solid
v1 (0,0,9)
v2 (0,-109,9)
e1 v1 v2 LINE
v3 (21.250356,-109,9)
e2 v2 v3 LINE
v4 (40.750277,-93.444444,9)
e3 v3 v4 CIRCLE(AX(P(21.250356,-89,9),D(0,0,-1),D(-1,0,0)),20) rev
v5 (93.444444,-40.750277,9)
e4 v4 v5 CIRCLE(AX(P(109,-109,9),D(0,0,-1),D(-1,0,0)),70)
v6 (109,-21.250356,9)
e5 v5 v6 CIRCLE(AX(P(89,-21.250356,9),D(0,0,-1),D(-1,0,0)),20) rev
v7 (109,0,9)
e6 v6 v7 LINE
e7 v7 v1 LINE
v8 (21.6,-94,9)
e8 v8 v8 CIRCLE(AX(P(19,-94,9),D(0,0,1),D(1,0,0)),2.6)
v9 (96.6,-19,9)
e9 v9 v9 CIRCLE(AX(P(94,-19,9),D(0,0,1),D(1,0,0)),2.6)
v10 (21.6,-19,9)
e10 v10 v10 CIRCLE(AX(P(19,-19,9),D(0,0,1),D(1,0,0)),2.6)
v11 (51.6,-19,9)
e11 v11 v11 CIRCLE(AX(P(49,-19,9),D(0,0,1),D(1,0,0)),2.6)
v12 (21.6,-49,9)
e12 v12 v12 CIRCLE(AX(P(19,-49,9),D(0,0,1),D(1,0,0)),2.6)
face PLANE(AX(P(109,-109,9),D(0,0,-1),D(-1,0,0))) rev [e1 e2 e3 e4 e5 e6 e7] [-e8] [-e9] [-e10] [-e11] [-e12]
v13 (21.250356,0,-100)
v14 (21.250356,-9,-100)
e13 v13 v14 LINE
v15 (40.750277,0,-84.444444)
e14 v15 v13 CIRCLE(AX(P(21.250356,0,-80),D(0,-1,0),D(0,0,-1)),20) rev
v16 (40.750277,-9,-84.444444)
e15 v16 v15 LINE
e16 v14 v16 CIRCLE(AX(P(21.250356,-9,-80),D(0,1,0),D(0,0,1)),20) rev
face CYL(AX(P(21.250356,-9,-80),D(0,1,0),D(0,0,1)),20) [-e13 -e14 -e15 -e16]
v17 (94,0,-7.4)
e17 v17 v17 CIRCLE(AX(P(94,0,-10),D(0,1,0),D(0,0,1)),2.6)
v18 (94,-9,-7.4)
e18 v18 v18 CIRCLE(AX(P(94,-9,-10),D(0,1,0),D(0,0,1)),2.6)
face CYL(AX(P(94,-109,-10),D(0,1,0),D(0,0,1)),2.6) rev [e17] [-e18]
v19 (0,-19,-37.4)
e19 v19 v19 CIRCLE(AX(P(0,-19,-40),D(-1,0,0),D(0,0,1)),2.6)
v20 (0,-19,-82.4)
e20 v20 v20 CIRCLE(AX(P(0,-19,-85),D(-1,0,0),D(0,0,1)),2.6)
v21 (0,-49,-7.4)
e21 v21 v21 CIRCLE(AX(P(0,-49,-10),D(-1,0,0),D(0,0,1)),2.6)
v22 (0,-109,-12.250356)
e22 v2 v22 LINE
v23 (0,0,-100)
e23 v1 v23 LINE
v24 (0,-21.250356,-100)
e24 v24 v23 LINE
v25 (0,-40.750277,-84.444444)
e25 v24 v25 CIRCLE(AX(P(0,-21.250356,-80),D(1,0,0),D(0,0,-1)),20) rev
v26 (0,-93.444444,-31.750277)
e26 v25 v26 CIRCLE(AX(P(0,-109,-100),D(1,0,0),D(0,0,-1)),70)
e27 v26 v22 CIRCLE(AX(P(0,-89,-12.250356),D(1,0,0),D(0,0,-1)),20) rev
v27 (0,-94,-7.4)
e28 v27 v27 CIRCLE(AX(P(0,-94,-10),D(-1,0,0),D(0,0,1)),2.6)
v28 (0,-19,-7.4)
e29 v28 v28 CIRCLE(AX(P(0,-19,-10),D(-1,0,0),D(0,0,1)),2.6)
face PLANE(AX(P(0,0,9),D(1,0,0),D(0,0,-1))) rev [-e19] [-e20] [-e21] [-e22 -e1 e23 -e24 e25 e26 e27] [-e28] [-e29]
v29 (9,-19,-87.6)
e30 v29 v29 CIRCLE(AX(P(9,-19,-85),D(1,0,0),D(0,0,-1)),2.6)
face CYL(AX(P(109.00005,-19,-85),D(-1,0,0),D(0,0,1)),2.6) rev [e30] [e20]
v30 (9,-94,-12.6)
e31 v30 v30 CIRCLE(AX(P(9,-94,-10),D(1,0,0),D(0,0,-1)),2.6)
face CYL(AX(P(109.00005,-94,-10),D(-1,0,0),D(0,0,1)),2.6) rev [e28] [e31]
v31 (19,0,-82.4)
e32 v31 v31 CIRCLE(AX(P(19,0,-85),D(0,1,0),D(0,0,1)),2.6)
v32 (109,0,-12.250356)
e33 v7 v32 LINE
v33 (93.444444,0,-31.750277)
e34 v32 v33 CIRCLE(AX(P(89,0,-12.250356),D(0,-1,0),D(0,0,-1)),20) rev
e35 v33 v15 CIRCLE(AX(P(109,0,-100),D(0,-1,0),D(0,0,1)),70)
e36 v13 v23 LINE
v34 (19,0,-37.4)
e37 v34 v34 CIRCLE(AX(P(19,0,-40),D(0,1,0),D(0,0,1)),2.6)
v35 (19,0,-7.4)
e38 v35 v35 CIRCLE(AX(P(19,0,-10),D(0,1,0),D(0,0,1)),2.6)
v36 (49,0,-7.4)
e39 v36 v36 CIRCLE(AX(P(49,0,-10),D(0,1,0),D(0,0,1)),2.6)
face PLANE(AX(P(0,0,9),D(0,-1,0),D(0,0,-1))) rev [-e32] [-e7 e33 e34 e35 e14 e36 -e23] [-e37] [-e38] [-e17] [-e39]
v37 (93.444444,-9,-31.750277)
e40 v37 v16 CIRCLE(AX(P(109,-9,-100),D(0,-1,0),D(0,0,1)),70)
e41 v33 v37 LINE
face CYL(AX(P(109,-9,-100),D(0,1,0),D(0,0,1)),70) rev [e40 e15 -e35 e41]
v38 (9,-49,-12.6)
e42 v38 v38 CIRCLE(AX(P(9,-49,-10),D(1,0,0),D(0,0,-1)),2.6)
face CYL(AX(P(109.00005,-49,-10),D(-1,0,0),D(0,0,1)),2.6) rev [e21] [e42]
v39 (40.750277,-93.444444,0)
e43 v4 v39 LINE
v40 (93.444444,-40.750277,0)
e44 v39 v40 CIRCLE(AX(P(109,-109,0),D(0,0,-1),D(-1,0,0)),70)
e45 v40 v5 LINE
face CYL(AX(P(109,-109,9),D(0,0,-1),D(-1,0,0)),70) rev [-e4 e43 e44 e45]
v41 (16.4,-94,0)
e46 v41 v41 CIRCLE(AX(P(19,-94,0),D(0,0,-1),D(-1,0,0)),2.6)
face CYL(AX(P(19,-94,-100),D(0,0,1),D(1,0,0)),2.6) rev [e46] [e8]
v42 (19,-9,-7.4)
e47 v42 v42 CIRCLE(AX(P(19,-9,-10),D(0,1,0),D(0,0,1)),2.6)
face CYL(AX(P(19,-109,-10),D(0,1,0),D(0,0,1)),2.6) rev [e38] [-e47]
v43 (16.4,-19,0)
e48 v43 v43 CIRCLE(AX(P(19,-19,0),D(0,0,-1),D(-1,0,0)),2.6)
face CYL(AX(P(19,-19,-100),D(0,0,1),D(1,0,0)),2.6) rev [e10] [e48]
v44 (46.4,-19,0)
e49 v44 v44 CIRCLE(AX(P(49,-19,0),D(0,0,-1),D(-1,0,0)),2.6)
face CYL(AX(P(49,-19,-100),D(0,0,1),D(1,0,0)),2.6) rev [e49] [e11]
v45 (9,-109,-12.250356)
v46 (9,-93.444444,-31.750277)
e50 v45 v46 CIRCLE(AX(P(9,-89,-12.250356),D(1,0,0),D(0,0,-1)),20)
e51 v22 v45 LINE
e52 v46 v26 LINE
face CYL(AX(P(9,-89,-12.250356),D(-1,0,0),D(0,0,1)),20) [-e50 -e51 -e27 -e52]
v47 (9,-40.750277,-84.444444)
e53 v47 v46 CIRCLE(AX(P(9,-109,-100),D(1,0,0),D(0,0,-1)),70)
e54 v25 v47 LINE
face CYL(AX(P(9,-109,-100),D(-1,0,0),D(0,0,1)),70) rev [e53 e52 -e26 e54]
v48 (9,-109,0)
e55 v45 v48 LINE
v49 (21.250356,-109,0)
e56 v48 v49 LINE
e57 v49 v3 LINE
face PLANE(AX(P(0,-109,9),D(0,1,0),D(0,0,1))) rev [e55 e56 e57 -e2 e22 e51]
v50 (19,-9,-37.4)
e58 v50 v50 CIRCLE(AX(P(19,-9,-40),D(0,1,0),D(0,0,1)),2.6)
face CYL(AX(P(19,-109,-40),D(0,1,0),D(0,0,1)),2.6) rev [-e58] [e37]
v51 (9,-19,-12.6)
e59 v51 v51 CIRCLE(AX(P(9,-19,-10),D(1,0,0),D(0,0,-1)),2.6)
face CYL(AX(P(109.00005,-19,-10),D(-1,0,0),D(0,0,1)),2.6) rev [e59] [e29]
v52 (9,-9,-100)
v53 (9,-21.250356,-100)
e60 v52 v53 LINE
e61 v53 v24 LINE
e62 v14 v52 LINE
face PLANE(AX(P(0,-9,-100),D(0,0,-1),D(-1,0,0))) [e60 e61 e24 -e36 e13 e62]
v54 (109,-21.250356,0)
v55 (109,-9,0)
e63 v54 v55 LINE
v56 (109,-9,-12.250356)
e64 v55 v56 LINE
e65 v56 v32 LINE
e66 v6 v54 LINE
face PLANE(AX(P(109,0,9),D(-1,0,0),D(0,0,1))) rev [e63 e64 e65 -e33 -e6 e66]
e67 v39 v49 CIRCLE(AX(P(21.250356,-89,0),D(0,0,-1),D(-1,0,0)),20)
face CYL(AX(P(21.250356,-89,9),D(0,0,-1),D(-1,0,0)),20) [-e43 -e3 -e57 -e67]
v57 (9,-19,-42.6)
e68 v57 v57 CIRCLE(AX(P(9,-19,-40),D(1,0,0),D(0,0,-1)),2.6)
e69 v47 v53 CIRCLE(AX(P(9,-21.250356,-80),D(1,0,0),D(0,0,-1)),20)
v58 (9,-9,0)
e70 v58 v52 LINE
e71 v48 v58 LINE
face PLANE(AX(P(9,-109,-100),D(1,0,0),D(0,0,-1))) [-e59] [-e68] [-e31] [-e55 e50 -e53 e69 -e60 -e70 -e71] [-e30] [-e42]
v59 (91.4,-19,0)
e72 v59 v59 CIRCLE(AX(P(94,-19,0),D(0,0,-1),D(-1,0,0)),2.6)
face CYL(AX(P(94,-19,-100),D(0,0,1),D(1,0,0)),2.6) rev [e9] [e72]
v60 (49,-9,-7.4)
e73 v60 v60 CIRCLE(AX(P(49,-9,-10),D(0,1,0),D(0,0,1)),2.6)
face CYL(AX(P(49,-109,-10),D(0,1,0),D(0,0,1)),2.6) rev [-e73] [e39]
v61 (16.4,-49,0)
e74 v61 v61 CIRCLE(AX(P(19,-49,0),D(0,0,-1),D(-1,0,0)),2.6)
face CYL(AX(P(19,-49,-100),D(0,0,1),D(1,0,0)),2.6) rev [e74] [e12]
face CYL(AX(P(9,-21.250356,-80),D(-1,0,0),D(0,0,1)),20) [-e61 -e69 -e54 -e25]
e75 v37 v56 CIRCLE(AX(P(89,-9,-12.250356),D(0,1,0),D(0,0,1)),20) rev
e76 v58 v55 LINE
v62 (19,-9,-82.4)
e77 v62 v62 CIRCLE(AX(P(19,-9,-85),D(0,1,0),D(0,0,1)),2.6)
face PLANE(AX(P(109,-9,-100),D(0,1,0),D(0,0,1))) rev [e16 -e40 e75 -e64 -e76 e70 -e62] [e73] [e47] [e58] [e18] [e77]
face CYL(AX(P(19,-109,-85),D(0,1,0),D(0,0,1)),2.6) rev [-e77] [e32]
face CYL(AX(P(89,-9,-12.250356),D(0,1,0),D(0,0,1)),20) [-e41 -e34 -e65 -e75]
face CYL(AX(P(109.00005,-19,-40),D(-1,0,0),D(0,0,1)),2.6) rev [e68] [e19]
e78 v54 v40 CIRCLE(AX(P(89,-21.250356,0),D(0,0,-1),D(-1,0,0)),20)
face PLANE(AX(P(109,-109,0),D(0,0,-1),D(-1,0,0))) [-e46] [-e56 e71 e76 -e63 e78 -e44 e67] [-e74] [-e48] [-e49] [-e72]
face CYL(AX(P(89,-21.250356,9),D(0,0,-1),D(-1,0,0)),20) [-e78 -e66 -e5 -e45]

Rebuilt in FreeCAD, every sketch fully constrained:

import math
import FreeCAD as App
import Part
import Sketcher

V = App.Vector
Q = App.Units.Quantity


def edges_at(feature, points):
    """Names of the edges that pass closest to the given points."""
    edges = feature.Shape.Edges
    near = lambda p: min(range(len(edges)), key=lambda i: edges[i].distToShape(Part.Vertex(*p))[0])
    return sorted({f"Edge{near(p) + 1}" for p in points})

doc = App.newDocument("Part")
body = doc.addObject("PartDesign::Body", "Body")

sketch1 = doc.addObject("Sketcher::SketchObject", "Sketch")
body.addObject(sketch1)
sketch1.AttachmentSupport = (doc.XY_Plane, [""])
sketch1.MapMode = "FlatFace"
sketch1.addGeometry(Part.LineSegment(V(109, 0, 0), V(0, 0, 0)), False)
sketch1.addGeometry(Part.LineSegment(V(0, 0, 0), V(0, -109, 0)), False)
sketch1.addGeometry(Part.LineSegment(V(0, -109, 0), V(39, -109, 0)), False)
sketch1.addGeometry(Part.ArcOfCircle(Part.Circle(V(109, -109, 0), V(0, 0, 1), 70), math.radians(90), math.radians(180)), False)
sketch1.addGeometry(Part.LineSegment(V(109, -39, 0), V(109, 0, 0)), False)
sketch1.addConstraint(Sketcher.Constraint("Coincident", 0, 2, 1, 1))
sketch1.addConstraint(Sketcher.Constraint("Coincident", 1, 2, 2, 1))
sketch1.addConstraint(Sketcher.Constraint("Coincident", 2, 2, 3, 2))
sketch1.addConstraint(Sketcher.Constraint("Coincident", 3, 1, 4, 1))
sketch1.addConstraint(Sketcher.Constraint("Coincident", 4, 2, 0, 1))
sketch1.addConstraint(Sketcher.Constraint("Horizontal", 0))
sketch1.addConstraint(Sketcher.Constraint("Vertical", 1))
sketch1.addConstraint(Sketcher.Constraint("Horizontal", 2))
sketch1.addConstraint(Sketcher.Constraint("Vertical", 4))
sketch1.addConstraint(Sketcher.Constraint("Coincident", 0, 2, -1, 1))
sketch1.addConstraint(Sketcher.Constraint("Horizontal", 3, 3, 1, 2))
sketch1.addConstraint(Sketcher.Constraint("Equal", 0, 1))
sketch1.addConstraint(Sketcher.Constraint("Equal", 2, 4))
sketch1.addConstraint(Sketcher.Constraint("Radius", 3, Q("70 mm")))
sketch1.addConstraint(Sketcher.Constraint("DistanceX", 0, 2, 0, 1, Q("109 mm")))
pad1 = doc.addObject("PartDesign::Pad", "Pad")
body.addObject(pad1)
pad1.Profile = sketch1
pad1.Length = 9

sketch2 = doc.addObject("Sketcher::SketchObject", "Sketch001")
body.addObject(sketch2)
sketch2.AttachmentSupport = (doc.XZ_Plane, [""])
sketch2.MapMode = "FlatFace"
sketch2.addGeometry(Part.LineSegment(V(0, -100, 0), V(0, 0, 0)), False)
sketch2.addGeometry(Part.LineSegment(V(0, 0, 0), V(109, 0, 0)), False)
sketch2.addGeometry(Part.LineSegment(V(109, 0, 0), V(109, -30, 0)), False)
sketch2.addGeometry(Part.ArcOfCircle(Part.Circle(V(109, -100, 0), V(0, 0, 1), 70), math.radians(90), math.radians(180)), False)
sketch2.addGeometry(Part.LineSegment(V(39, -100, 0), V(0, -100, 0)), False)
sketch2.addConstraint(Sketcher.Constraint("Coincident", 0, 2, 1, 1))
sketch2.addConstraint(Sketcher.Constraint("Coincident", 1, 2, 2, 1))
sketch2.addConstraint(Sketcher.Constraint("Coincident", 2, 2, 3, 1))
sketch2.addConstraint(Sketcher.Constraint("Coincident", 3, 2, 4, 1))
sketch2.addConstraint(Sketcher.Constraint("Coincident", 4, 2, 0, 1))
sketch2.addConstraint(Sketcher.Constraint("Vertical", 0))
sketch2.addConstraint(Sketcher.Constraint("Horizontal", 1))
sketch2.addConstraint(Sketcher.Constraint("Vertical", 2))
sketch2.addConstraint(Sketcher.Constraint("Horizontal", 4))
sketch2.addConstraint(Sketcher.Constraint("Coincident", 0, 2, -1, 1))
sketch2.addConstraint(Sketcher.Constraint("Vertical", 3, 3, 1, 2))
sketch2.addConstraint(Sketcher.Constraint("Radius", 3, Q("70 mm")))
sketch2.addConstraint(Sketcher.Constraint("DistanceX", 1, 1, 1, 2, Q("109 mm")))
sketch2.addConstraint(Sketcher.Constraint("DistanceY", 0, 1, 0, 2, Q("100 mm")))
sketch2.addConstraint(Sketcher.Constraint("DistanceY", 2, 2, 2, 1, Q("30 mm")))
pad2 = doc.addObject("PartDesign::Pad", "Pad001")
body.addObject(pad2)
pad2.Profile = sketch2
pad2.Length = 9

sketch3 = doc.addObject("Sketcher::SketchObject", "Sketch002")
body.addObject(sketch3)
sketch3.AttachmentSupport = (doc.YZ_Plane, [""])
sketch3.MapMode = "FlatFace"
sketch3.addGeometry(Part.LineSegment(V(-109, -30, 0), V(-109, 0, 0)), False)
sketch3.addGeometry(Part.LineSegment(V(-109, 0, 0), V(-9, 0, 0)), False)
sketch3.addGeometry(Part.LineSegment(V(-9, 0, 0), V(-9, -100, 0)), False)
sketch3.addGeometry(Part.LineSegment(V(-9, -100, 0), V(-39, -100, 0)), False)
sketch3.addGeometry(Part.ArcOfCircle(Part.Circle(V(-109, -100, 0), V(0, 0, 1), 70), math.radians(0), math.radians(90)), False)
sketch3.addConstraint(Sketcher.Constraint("Coincident", 0, 2, 1, 1))
sketch3.addConstraint(Sketcher.Constraint("Coincident", 1, 2, 2, 1))
sketch3.addConstraint(Sketcher.Constraint("Coincident", 2, 2, 3, 1))
sketch3.addConstraint(Sketcher.Constraint("Coincident", 3, 2, 4, 1))
sketch3.addConstraint(Sketcher.Constraint("Coincident", 4, 2, 0, 1))
sketch3.addConstraint(Sketcher.Constraint("Vertical", 0))
sketch3.addConstraint(Sketcher.Constraint("Horizontal", 1))
sketch3.addConstraint(Sketcher.Constraint("Vertical", 2))
sketch3.addConstraint(Sketcher.Constraint("Horizontal", 3))
sketch3.addConstraint(Sketcher.Constraint("PointOnObject", 0, 2, -1))
sketch3.addConstraint(Sketcher.Constraint("Horizontal", 4, 3, 2, 2))
sketch3.addConstraint(Sketcher.Constraint("Vertical", 4, 3, 0, 2))
sketch3.addConstraint(Sketcher.Constraint("Equal", 3, 0))
sketch3.addConstraint(Sketcher.Constraint("Radius", 4, Q("70 mm")))
sketch3.addConstraint(Sketcher.Constraint("DistanceX", 1, 1, 1, 2, Q("100 mm")))
sketch3.addConstraint(Sketcher.Constraint("DistanceX", 4, 3, -1, 1, Q("109 mm")))
pad3 = doc.addObject("PartDesign::Pad", "Pad002")
body.addObject(pad3)
pad3.Profile = sketch3
pad3.Length = 9
doc.recompute()

fillet = doc.addObject("PartDesign::Fillet", "Fillet")
body.addObject(fillet)
fillet.Base = (pad3, edges_at(pad3, [
    (4.5, -109, -30),
    (4.5, -39, -100),
    (39, -4.5, -100),
    (39, -109, 4.5),
    (109, -39, 4.5),
    (109, -4.5, -30),
]))
fillet.Radius = 20

sketch4 = doc.addObject("Sketcher::SketchObject", "Sketch003")
body.addObject(sketch4)
sketch4.AttachmentSupport = (doc.XZ_Plane, [""])
sketch4.MapMode = "FlatFace"
sketch4.addGeometry(Part.Circle(V(19, -85, 0), V(0, 0, 1), 2.6), False)
sketch4.addGeometry(Part.Circle(V(19, -10, 0), V(0, 0, 1), 2.6), False)
sketch4.addGeometry(Part.Circle(V(94, -10, 0), V(0, 0, 1), 2.6), False)
sketch4.addGeometry(Part.Circle(V(49, -10, 0), V(0, 0, 1), 2.6), False)
sketch4.addGeometry(Part.Circle(V(19, -40, 0), V(0, 0, 1), 2.6), False)
sketch4.addConstraint(Sketcher.Constraint("Equal", 0, 1))
sketch4.addConstraint(Sketcher.Constraint("Equal", 1, 2))
sketch4.addConstraint(Sketcher.Constraint("Equal", 2, 3))
sketch4.addConstraint(Sketcher.Constraint("Equal", 3, 4))
sketch4.addConstraint(Sketcher.Constraint("Horizontal", 1, 3, 2, 3))
sketch4.addConstraint(Sketcher.Constraint("Horizontal", 2, 3, 3, 3))
sketch4.addConstraint(Sketcher.Constraint("Vertical", 0, 3, 1, 3))
sketch4.addConstraint(Sketcher.Constraint("Vertical", 1, 3, 4, 3))
sketch4.addConstraint(Sketcher.Constraint("Diameter", 0, Q("5.2 mm")))
sketch4.addConstraint(Sketcher.Constraint("DistanceX", -1, 1, 0, 3, Q("19 mm")))
sketch4.addConstraint(Sketcher.Constraint("DistanceY", 0, 3, -1, 1, Q("85 mm")))
sketch4.addConstraint(Sketcher.Constraint("DistanceY", 1, 3, -1, 1, Q("10 mm")))
sketch4.addConstraint(Sketcher.Constraint("DistanceX", -1, 1, 2, 3, Q("94 mm")))
sketch4.addConstraint(Sketcher.Constraint("DistanceX", -1, 1, 3, 3, Q("49 mm")))
sketch4.addConstraint(Sketcher.Constraint("DistanceY", 4, 3, -1, 1, Q("40 mm")))
pocket1 = doc.addObject("PartDesign::Pocket", "Pocket")
body.addObject(pocket1)
pocket1.Profile = sketch4
pocket1.Type = "ThroughAll"
pocket1.Reversed = True

sketch5 = doc.addObject("Sketcher::SketchObject", "Sketch004")
body.addObject(sketch5)
sketch5.AttachmentSupport = (doc.YZ_Plane, [""])
sketch5.MapMode = "FlatFace"
sketch5.addGeometry(Part.Circle(V(-19, -85, 0), V(0, 0, 1), 2.6), False)
sketch5.addGeometry(Part.Circle(V(-19, -40, 0), V(0, 0, 1), 2.6), False)
sketch5.addGeometry(Part.Circle(V(-19, -10, 0), V(0, 0, 1), 2.6), False)
sketch5.addGeometry(Part.Circle(V(-49, -10, 0), V(0, 0, 1), 2.6), False)
sketch5.addGeometry(Part.Circle(V(-94, -10, 0), V(0, 0, 1), 2.6), False)
sketch5.addConstraint(Sketcher.Constraint("Equal", 0, 1))
sketch5.addConstraint(Sketcher.Constraint("Equal", 1, 2))
sketch5.addConstraint(Sketcher.Constraint("Equal", 2, 3))
sketch5.addConstraint(Sketcher.Constraint("Equal", 3, 4))
sketch5.addConstraint(Sketcher.Constraint("Horizontal", 2, 3, 3, 3))
sketch5.addConstraint(Sketcher.Constraint("Horizontal", 3, 3, 4, 3))
sketch5.addConstraint(Sketcher.Constraint("Vertical", 0, 3, 1, 3))
sketch5.addConstraint(Sketcher.Constraint("Vertical", 1, 3, 2, 3))
sketch5.addConstraint(Sketcher.Constraint("Diameter", 0, Q("5.2 mm")))
sketch5.addConstraint(Sketcher.Constraint("DistanceX", 0, 3, -1, 1, Q("19 mm")))
sketch5.addConstraint(Sketcher.Constraint("DistanceY", 0, 3, -1, 1, Q("85 mm")))
sketch5.addConstraint(Sketcher.Constraint("DistanceY", 1, 3, -1, 1, Q("40 mm")))
sketch5.addConstraint(Sketcher.Constraint("DistanceY", 2, 3, -1, 1, Q("10 mm")))
sketch5.addConstraint(Sketcher.Constraint("DistanceX", 3, 3, -1, 1, Q("49 mm")))
sketch5.addConstraint(Sketcher.Constraint("DistanceX", 4, 3, -1, 1, Q("94 mm")))
pocket2 = doc.addObject("PartDesign::Pocket", "Pocket001")
body.addObject(pocket2)
pocket2.Profile = sketch5
pocket2.Type = "ThroughAll"
pocket2.Reversed = True

sketch6 = doc.addObject("Sketcher::SketchObject", "Sketch005")
body.addObject(sketch6)
sketch6.AttachmentSupport = (doc.XY_Plane, [""])
sketch6.MapMode = "FlatFace"
sketch6.AttachmentOffset = App.Placement(V(0, 0, 9), App.Rotation())
sketch6.addGeometry(Part.Circle(V(19, -19, 0), V(0, 0, 1), 2.6), False)
sketch6.addGeometry(Part.Circle(V(49, -19, 0), V(0, 0, 1), 2.6), False)
sketch6.addGeometry(Part.Circle(V(94, -19, 0), V(0, 0, 1), 2.6), False)
sketch6.addGeometry(Part.Circle(V(19, -49, 0), V(0, 0, 1), 2.6), False)
sketch6.addGeometry(Part.Circle(V(19, -94, 0), V(0, 0, 1), 2.6), False)
sketch6.addConstraint(Sketcher.Constraint("Equal", 0, 1))
sketch6.addConstraint(Sketcher.Constraint("Equal", 1, 2))
sketch6.addConstraint(Sketcher.Constraint("Equal", 2, 3))
sketch6.addConstraint(Sketcher.Constraint("Equal", 3, 4))
sketch6.addConstraint(Sketcher.Constraint("Horizontal", 0, 3, 1, 3))
sketch6.addConstraint(Sketcher.Constraint("Horizontal", 1, 3, 2, 3))
sketch6.addConstraint(Sketcher.Constraint("Vertical", 0, 3, 3, 3))
sketch6.addConstraint(Sketcher.Constraint("Vertical", 3, 3, 4, 3))
sketch6.addConstraint(Sketcher.Constraint("Diameter", 0, Q("5.2 mm")))
sketch6.addConstraint(Sketcher.Constraint("DistanceX", -1, 1, 0, 3, Q("19 mm")))
sketch6.addConstraint(Sketcher.Constraint("DistanceY", 0, 3, -1, 1, Q("19 mm")))
sketch6.addConstraint(Sketcher.Constraint("DistanceX", -1, 1, 1, 3, Q("49 mm")))
sketch6.addConstraint(Sketcher.Constraint("DistanceX", -1, 1, 2, 3, Q("94 mm")))
sketch6.addConstraint(Sketcher.Constraint("DistanceY", 3, 3, -1, 1, Q("49 mm")))
sketch6.addConstraint(Sketcher.Constraint("DistanceY", 4, 3, -1, 1, Q("94 mm")))
pocket3 = doc.addObject("PartDesign::Pocket", "Pocket002")
body.addObject(pocket3)
pocket3.Profile = sketch6
pocket3.Type = "ThroughAll"

doc.recompute()
